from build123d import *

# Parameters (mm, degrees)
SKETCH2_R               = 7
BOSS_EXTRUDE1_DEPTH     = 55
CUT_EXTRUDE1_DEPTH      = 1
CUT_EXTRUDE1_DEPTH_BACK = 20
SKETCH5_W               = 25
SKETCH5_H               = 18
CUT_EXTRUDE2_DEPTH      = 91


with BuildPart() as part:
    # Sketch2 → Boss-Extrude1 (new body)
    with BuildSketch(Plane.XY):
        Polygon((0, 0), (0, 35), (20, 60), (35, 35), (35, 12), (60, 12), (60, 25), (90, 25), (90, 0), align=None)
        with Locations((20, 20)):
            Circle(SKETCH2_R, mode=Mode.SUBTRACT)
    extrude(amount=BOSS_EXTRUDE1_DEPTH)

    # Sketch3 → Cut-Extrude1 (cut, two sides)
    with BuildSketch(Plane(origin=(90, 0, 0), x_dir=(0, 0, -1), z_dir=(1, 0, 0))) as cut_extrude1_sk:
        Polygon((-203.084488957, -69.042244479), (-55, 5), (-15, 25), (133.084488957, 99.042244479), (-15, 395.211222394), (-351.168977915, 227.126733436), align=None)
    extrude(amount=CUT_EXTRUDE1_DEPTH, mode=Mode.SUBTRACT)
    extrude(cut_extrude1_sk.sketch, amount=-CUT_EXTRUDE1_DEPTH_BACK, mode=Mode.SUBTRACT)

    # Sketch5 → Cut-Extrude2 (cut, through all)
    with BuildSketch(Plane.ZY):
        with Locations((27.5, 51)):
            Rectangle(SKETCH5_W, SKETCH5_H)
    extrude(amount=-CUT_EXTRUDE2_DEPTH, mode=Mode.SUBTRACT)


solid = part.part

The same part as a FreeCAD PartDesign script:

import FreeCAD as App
import Part
import Sketcher

V = App.Vector
Q = App.Units.Quantity


def add_polygon(sketch, points):
    """Adds a closed chain of lines whose ends are joined by coincident constraints."""
    first, n = sketch.GeometryCount, len(points)
    for a, b in zip(points, points[1:] + points[:1]):
        sketch.addGeometry(Part.LineSegment(App.Vector(*a, 0), App.Vector(*b, 0)), False)
    for i in range(n):
        sketch.addConstraint(Sketcher.Constraint("Coincident", first + i, 2, first + (i + 1) % n, 1))

doc = App.newDocument("Part")
body = doc.addObject("PartDesign::Body", "Body")

# Sketch on XY plane
sketch1 = doc.addObject("Sketcher::SketchObject", "Sketch")
body.addObject(sketch1)
sketch1.AttachmentSupport = (doc.XY_Plane, [""])
sketch1.MapMode = "FlatFace"
add_polygon(sketch1, [(0, 35), (0, 0), (90, 0), (90, 25), (60, 25), (60, 12), (35, 12), (35, 35), (20, 60)])  # lines 0-8
sketch1.addGeometry(Part.Circle(V(20, 20, 0), V(0, 0, 1), 7), False)  # 9
sketch1.addConstraint(Sketcher.Constraint("Vertical", 0))
sketch1.addConstraint(Sketcher.Constraint("Horizontal", 1))
sketch1.addConstraint(Sketcher.Constraint("Vertical", 2))
sketch1.addConstraint(Sketcher.Constraint("Horizontal", 3))
sketch1.addConstraint(Sketcher.Constraint("Vertical", 4))
sketch1.addConstraint(Sketcher.Constraint("Horizontal", 5))
sketch1.addConstraint(Sketcher.Constraint("Vertical", 6))
sketch1.addConstraint(Sketcher.Constraint("Coincident", 0, 2, -1, 1))
sketch1.addConstraint(Sketcher.Constraint("Horizontal", 6, 2, 8, 2))
sketch1.addConstraint(Sketcher.Constraint("Vertical", 9, 3, 7, 2))
sketch1.addConstraint(Sketcher.Constraint("Equal", 5, 2))
sketch1.addConstraint(Sketcher.Constraint("Diameter", 9, Q("14 mm")))
sketch1.addConstraint(Sketcher.Constraint("DistanceX", 1, 1, 1, 2, Q("90 mm")))
sketch1.addConstraint(Sketcher.Constraint("DistanceX", 3, 2, 3, 1, Q("30 mm")))
sketch1.addConstraint(Sketcher.Constraint("DistanceX", 5, 2, 5, 1, Q("25 mm")))
sketch1.addConstraint(Sketcher.Constraint("DistanceY", 0, 2, 0, 1, Q("35 mm")))
sketch1.addConstraint(Sketcher.Constraint("DistanceY", 4, 2, 4, 1, Q("13 mm")))
sketch1.addConstraint(Sketcher.Constraint("DistanceX", -1, 1, 9, 3, Q("20 mm")))
sketch1.addConstraint(Sketcher.Constraint("DistanceY", -1, 1, 9, 3, Q("20 mm")))
sketch1.addConstraint(Sketcher.Constraint("DistanceY", -1, 1, 7, 2, Q("60 mm")))
pad1 = doc.addObject("PartDesign::Pad", "Pad")
body.addObject(pad1)
pad1.Profile = sketch1
pad1.Length = 55

# Sketch on YZ plane
sketch2 = doc.addObject("Sketcher::SketchObject", "Sketch001")
body.addObject(sketch2)
sketch2.AttachmentSupport = (doc.YZ_Plane, [""])
sketch2.MapMode = "FlatFace"
sketch2.AttachmentOffset = App.Placement(V(0, 0, 90), App.Rotation())
add_polygon(sketch2, [(-69.042244, 203.084489), (5, 55), (25, 15), (99.042244, -133.084489), (395.211222, 15), (227.126733, 351.168978)])  # lines 0-5
sketch2.addConstraint(Sketcher.Constraint("Parallel", 0, 1))
sketch2.addConstraint(Sketcher.Constraint("Parallel", 1, 2))
sketch2.addConstraint(Sketcher.Constraint("Perpendicular", 2, 3))
sketch2.addConstraint(Sketcher.Constraint("Perpendicular", 3, 4))
sketch2.addConstraint(Sketcher.Constraint("Perpendicular", 4, 5))
sketch2.addConstraint(Sketcher.Constraint("Horizontal", 1, 2, 3, 2))
sketch2.addConstraint(Sketcher.Constraint("Equal", 0, 2))
sketch2.addConstraint(Sketcher.Constraint("DistanceX", -1, 1, 0, 2, Q("5 mm")))
sketch2.addConstraint(Sketcher.Constraint("DistanceY", -1, 1, 0, 2, Q("55 mm")))
sketch2.addConstraint(Sketcher.Constraint("DistanceX", -1, 1, 1, 2, Q("25 mm")))
sketch2.addConstraint(Sketcher.Constraint("DistanceY", -1, 1, 1, 2, Q("15 mm")))
sketch2.addConstraint(Sketcher.Constraint("Distance", 0, Q("165.563492 mm")))
pocket1 = doc.addObject("PartDesign::Pocket", "Pocket")
body.addObject(pocket1)
pocket1.Profile = sketch2
pocket1.Type = "TwoLengths"
pocket1.Length = 1
pocket1.Length2 = 20
pocket1.Reversed = True

# Sketch on YZ plane
sketch3 = doc.addObject("Sketcher::SketchObject", "Sketch002")
body.addObject(sketch3)
sketch3.AttachmentSupport = (doc.YZ_Plane, [""])
sketch3.MapMode = "FlatFace"
add_polygon(sketch3, [(60, 15), (42, 15), (42, 40), (60, 40)])  # lines 0-3
sketch3.addConstraint(Sketcher.Constraint("Horizontal", 0))
sketch3.addConstraint(Sketcher.Constraint("Vertical", 1))
sketch3.addConstraint(Sketcher.Constraint("Horizontal", 2))
sketch3.addConstraint(Sketcher.Constraint("Vertical", 3))
sketch3.addConstraint(Sketcher.Constraint("DistanceX", 0, 2, 0, 1, Q("18 mm")))
sketch3.addConstraint(Sketcher.Constraint("DistanceY", 1, 1, 1, 2, Q("25 mm")))
sketch3.addConstraint(Sketcher.Constraint("DistanceX", -1, 1, 0, 2, Q("42 mm")))
sketch3.addConstraint(Sketcher.Constraint("DistanceY", -1, 1, 0, 2, Q("15 mm")))
pocket2 = doc.addObject("PartDesign::Pocket", "Pocket001")
body.addObject(pocket2)
pocket2.Profile = sketch3
pocket2.Type = "ThroughAll"
pocket2.Reversed = True

doc.recompute()
